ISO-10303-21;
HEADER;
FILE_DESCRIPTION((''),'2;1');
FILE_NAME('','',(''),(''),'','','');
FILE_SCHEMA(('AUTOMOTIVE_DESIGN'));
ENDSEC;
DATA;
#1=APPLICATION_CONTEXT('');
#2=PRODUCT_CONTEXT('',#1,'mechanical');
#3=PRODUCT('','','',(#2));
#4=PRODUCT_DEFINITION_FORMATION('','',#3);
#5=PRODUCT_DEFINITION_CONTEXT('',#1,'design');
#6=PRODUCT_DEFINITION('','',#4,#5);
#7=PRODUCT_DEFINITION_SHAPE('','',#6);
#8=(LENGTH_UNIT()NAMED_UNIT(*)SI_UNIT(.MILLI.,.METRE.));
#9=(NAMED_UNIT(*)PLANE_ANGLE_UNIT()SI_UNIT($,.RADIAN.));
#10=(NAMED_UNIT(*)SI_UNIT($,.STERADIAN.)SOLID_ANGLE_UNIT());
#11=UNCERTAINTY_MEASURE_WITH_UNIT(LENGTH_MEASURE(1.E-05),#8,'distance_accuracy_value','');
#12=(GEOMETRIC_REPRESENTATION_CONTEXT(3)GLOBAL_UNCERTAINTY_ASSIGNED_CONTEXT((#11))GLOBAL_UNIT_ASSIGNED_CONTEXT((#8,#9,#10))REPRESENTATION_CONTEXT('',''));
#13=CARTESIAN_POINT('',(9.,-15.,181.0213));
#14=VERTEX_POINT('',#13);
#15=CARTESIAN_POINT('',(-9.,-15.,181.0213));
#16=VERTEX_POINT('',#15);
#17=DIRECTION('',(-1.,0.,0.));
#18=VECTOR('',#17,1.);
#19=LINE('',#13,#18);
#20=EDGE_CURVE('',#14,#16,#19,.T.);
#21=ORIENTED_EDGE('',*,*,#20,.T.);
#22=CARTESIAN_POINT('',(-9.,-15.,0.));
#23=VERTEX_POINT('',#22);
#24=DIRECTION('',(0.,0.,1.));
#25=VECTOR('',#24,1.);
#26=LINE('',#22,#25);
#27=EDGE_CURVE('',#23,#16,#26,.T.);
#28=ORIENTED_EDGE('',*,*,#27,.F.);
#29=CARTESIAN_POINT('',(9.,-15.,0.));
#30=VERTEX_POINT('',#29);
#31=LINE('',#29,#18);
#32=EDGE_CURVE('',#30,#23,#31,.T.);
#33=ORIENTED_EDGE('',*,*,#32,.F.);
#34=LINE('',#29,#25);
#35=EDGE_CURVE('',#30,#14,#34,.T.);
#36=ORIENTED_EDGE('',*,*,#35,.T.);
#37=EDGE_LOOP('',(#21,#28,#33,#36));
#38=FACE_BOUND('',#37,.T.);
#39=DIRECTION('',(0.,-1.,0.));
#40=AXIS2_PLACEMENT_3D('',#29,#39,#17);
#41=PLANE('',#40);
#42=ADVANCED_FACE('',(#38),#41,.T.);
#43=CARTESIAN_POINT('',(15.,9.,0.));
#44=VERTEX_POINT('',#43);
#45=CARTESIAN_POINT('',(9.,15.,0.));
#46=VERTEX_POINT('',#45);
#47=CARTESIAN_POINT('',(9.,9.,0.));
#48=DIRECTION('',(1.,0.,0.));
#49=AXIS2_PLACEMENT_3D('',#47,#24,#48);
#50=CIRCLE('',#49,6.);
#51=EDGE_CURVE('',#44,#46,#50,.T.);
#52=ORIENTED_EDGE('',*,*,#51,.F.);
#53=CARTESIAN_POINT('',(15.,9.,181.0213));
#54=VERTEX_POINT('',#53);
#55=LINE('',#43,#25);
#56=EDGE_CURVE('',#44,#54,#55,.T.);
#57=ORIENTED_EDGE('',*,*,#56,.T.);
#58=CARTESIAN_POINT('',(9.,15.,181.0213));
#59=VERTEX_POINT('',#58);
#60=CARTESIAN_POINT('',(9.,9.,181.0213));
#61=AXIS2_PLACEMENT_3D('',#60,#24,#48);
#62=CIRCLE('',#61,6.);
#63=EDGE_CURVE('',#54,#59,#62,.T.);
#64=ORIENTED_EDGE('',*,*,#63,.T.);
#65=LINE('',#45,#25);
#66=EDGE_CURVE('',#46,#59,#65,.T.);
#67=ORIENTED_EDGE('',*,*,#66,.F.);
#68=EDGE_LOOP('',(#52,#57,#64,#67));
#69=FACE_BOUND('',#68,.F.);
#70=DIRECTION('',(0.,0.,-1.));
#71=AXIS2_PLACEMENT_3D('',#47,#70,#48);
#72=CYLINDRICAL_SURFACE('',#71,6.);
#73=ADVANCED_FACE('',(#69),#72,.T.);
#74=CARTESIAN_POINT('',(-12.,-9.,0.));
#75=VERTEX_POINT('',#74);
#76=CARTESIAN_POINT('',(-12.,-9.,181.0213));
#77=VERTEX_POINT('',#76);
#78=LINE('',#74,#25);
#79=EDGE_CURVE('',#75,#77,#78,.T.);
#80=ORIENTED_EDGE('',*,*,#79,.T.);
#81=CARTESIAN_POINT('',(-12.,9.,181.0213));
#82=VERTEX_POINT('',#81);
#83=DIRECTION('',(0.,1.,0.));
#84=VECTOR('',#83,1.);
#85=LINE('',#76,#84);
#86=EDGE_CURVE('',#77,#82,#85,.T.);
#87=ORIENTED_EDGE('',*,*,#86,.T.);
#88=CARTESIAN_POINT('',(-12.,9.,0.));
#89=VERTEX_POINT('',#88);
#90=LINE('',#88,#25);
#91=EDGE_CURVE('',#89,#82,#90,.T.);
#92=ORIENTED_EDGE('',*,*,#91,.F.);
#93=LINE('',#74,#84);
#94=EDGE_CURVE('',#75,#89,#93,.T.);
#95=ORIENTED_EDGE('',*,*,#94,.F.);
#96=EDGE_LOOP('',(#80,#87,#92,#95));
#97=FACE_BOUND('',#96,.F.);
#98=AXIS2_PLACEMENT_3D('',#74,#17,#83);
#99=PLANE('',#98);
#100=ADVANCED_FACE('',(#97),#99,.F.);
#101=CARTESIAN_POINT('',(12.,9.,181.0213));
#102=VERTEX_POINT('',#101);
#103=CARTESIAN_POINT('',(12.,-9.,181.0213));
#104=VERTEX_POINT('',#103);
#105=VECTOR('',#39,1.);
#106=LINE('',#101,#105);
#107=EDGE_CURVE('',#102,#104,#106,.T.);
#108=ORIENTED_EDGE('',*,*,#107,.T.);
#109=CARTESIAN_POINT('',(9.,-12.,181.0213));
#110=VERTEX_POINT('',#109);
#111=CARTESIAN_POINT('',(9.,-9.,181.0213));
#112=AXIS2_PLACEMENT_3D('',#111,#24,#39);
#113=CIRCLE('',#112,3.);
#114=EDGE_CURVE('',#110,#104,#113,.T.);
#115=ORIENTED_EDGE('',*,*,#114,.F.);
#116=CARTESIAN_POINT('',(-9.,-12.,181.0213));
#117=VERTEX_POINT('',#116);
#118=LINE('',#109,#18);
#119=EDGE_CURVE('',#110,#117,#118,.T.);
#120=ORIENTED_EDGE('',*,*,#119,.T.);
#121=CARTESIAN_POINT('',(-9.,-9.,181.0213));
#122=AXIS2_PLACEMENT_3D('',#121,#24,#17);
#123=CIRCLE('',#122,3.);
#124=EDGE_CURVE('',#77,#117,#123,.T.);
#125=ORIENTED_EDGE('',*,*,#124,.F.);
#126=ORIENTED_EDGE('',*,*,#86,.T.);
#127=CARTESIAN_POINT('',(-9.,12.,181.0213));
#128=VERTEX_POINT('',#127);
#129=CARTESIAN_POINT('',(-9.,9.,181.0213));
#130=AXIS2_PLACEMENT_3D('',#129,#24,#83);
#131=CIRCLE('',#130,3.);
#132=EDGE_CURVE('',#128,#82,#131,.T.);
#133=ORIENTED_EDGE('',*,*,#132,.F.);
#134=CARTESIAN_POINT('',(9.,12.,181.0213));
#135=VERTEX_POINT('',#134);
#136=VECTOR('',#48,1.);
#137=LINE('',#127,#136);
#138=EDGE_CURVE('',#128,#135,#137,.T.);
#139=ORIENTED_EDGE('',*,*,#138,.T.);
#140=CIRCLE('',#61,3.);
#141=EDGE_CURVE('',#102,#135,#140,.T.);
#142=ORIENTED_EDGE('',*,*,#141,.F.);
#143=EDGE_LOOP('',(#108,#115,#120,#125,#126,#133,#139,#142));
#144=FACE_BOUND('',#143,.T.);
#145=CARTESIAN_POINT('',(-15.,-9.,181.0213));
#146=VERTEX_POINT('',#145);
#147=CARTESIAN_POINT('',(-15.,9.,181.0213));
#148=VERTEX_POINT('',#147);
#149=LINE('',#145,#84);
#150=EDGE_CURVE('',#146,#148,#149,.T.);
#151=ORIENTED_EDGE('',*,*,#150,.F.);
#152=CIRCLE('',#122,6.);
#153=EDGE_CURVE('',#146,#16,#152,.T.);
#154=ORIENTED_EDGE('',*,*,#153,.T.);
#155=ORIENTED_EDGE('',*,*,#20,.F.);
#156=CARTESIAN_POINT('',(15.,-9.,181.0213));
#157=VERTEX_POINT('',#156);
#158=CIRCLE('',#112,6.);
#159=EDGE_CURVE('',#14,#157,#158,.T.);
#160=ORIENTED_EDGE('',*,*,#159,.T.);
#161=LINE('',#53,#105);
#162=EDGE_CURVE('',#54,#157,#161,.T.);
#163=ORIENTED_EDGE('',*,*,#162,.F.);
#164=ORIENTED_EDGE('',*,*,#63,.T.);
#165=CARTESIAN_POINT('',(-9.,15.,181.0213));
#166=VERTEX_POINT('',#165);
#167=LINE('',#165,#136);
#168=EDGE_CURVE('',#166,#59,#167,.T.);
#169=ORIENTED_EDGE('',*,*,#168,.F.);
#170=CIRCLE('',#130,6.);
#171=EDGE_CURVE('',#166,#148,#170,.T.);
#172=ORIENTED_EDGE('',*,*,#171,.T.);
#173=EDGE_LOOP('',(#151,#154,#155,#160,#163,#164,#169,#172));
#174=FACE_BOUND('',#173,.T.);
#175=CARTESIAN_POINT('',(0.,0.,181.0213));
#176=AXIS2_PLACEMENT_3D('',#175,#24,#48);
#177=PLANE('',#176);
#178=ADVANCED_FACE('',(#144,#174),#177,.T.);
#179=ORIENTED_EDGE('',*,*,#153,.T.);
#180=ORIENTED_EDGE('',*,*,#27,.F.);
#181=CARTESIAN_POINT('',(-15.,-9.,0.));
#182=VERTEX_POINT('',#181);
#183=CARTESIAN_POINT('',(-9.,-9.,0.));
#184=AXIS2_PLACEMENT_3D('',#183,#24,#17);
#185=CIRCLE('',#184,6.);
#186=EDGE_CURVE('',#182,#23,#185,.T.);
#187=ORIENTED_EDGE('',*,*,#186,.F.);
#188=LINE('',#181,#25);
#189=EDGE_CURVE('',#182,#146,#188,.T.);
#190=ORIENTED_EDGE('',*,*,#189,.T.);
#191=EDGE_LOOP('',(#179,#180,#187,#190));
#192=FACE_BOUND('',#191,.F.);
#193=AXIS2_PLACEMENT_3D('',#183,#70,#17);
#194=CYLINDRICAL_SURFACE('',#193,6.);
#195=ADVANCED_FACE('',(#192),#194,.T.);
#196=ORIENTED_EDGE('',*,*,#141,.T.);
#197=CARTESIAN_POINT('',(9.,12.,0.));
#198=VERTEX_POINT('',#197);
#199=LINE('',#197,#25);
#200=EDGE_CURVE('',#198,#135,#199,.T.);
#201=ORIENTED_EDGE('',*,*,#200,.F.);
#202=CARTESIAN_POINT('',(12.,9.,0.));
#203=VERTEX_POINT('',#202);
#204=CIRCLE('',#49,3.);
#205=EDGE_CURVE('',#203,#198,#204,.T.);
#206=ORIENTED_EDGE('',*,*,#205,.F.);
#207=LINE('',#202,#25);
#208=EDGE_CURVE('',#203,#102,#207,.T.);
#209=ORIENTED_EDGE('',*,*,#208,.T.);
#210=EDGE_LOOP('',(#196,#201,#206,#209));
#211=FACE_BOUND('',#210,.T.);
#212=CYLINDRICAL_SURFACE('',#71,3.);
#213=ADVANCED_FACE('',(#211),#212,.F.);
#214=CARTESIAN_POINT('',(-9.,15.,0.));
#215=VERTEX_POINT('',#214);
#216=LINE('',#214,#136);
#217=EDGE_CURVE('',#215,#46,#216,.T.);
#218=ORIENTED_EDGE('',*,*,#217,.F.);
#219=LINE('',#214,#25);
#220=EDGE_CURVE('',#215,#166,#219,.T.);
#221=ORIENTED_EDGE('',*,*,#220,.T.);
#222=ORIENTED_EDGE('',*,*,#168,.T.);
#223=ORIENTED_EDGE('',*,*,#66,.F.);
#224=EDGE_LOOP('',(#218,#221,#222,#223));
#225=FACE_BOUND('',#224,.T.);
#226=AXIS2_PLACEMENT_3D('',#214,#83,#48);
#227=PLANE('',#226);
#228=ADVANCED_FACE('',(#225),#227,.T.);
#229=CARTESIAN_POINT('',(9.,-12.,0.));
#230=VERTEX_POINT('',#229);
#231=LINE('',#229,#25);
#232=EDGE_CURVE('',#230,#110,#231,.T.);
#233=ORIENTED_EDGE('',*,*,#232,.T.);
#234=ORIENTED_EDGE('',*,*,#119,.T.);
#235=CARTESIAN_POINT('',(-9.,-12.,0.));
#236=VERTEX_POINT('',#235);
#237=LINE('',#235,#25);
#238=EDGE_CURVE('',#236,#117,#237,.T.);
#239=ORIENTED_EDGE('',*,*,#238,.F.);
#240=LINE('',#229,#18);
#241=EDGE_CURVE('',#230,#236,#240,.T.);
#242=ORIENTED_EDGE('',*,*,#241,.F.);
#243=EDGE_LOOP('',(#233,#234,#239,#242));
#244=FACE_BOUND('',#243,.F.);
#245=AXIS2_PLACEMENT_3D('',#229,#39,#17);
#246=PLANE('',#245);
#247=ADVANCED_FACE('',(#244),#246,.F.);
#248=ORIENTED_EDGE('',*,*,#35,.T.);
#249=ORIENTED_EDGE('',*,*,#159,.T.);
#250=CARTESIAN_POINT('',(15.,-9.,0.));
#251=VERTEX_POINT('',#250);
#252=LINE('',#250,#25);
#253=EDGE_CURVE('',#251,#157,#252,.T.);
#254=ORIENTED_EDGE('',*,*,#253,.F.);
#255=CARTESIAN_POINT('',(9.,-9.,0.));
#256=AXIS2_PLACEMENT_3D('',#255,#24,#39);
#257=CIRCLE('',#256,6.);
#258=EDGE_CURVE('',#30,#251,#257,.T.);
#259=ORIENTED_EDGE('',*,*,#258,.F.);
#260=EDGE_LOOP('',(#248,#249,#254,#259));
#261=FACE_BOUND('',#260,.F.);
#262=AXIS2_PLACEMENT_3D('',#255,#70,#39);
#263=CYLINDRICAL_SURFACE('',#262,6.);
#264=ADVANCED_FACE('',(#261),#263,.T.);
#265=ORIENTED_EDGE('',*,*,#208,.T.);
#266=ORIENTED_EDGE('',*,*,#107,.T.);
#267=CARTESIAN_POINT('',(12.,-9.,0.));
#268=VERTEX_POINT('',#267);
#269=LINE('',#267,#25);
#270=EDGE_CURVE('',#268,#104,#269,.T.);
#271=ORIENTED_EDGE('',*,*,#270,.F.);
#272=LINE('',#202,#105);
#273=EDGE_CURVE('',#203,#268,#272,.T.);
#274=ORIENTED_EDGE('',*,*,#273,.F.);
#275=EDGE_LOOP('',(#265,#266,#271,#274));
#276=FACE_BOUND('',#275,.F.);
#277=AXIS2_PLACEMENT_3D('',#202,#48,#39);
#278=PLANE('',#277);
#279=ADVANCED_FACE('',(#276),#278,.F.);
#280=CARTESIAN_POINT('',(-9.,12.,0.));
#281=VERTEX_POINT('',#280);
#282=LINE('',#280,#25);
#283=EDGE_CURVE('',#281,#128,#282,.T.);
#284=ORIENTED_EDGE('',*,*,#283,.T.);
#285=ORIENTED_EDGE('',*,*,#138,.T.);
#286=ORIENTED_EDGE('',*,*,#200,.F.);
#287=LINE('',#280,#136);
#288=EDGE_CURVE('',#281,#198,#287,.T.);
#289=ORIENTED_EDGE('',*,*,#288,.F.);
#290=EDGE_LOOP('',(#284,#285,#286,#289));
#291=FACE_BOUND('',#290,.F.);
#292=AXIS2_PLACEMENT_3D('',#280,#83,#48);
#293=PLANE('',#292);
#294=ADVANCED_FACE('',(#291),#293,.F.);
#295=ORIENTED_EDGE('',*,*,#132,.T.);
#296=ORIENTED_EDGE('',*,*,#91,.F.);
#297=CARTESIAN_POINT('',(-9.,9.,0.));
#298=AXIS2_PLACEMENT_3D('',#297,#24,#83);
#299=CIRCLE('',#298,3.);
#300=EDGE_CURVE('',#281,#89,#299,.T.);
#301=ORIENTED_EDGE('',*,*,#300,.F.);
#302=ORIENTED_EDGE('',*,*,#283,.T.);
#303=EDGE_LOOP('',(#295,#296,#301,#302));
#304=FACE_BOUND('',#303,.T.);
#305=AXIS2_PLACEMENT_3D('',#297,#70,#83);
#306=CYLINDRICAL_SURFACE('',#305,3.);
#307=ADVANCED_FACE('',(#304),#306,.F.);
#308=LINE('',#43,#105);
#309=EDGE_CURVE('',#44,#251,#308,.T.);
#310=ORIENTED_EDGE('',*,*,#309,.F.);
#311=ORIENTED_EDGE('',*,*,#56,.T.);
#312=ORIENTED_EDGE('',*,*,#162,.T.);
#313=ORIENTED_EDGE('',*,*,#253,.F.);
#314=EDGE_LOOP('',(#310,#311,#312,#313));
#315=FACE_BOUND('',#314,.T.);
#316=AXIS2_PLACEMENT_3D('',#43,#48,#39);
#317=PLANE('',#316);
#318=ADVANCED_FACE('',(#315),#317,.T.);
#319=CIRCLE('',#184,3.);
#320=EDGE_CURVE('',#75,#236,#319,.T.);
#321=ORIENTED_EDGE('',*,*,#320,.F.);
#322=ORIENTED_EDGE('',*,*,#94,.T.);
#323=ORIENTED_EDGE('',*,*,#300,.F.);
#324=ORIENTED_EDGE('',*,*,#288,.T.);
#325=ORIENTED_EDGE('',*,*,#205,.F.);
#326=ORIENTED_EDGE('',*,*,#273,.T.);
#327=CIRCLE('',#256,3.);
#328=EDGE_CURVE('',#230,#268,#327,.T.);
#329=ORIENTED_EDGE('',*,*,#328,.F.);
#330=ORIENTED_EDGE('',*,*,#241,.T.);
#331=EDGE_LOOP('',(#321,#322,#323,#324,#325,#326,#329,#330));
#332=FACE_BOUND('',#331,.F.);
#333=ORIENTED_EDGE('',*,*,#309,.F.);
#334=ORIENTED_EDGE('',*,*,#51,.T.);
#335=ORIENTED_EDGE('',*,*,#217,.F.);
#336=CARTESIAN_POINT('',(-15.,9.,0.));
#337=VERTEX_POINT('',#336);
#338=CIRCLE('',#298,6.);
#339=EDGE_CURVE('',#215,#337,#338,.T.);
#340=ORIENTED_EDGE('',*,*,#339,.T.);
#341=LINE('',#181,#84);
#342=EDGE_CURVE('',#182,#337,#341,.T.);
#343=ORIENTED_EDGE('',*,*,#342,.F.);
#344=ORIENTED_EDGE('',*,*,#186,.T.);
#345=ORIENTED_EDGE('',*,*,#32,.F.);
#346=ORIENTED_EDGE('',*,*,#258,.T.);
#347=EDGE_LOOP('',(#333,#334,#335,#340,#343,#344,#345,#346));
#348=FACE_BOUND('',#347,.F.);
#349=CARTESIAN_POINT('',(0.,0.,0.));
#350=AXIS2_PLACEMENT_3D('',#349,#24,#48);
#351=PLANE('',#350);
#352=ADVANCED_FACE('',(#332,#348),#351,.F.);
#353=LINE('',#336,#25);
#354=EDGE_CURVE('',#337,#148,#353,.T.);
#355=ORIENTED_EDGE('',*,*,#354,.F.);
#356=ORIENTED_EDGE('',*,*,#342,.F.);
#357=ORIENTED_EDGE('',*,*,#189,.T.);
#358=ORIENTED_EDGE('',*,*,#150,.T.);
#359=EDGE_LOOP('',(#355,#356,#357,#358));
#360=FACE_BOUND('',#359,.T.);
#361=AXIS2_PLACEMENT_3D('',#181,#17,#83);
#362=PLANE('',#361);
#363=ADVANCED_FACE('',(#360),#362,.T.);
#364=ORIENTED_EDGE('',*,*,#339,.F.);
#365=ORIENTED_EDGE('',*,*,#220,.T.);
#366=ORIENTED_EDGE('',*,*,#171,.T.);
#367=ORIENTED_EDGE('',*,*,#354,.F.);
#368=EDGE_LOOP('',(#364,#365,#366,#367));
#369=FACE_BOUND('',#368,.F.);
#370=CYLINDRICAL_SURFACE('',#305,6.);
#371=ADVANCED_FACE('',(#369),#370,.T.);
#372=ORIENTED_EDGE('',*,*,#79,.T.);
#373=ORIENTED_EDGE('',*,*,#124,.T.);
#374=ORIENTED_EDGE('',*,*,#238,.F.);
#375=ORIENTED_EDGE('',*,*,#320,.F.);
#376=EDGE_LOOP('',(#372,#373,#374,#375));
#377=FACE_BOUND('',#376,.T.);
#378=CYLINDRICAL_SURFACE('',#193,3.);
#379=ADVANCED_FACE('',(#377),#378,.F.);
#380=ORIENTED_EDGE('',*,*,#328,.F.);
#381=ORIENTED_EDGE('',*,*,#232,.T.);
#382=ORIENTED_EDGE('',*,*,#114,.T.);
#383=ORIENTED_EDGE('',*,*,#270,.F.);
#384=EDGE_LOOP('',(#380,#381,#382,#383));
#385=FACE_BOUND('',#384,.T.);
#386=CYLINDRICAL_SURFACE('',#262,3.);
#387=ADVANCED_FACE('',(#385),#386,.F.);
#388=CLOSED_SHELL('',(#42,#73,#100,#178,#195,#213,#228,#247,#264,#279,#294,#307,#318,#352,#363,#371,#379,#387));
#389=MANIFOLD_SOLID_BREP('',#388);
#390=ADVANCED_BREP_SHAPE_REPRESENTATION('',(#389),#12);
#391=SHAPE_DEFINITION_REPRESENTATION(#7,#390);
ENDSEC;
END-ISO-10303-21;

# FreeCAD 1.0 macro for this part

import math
import FreeCAD as App
import Part
import Sketcher
from FreeCAD import Vector

doc = App.newDocument("Part")
params = doc.addObject("Spreadsheet::Sheet", "Params")
for row, (alias, value) in enumerate([
    ("sketch1_radius", "6 mm"),
    ("sketch1_radius2", "3 mm"),
    ("pad1_length", "181.0213 mm"),
], start=1):
    params.set(f"A{row}", alias)
    params.set(f"B{row}", "=" + value)
    params.setAlias(f"B{row}", alias)

body = doc.addObject("PartDesign::Body", "Body")

# Sketch on XY plane
sketch1 = body.newObject("Sketcher::SketchObject", "Sketch")
sketch1.AttachmentSupport = (doc.getObject("XY_Plane"), [""])
sketch1.MapMode = "FlatFace"
sketch1.addGeometry([
    Part.LineSegment(Vector(-15, 9, 0), Vector(-15, -9, 0)),  # 0
    Part.ArcOfCircle(Part.Circle(Vector(-9, -9, 0), Vector(0, 0, 1), 6), math.radians(180), math.radians(270)),  # 1
    Part.LineSegment(Vector(-9, -15, 0), Vector(9, -15, 0)),  # 2
    Part.ArcOfCircle(Part.Circle(Vector(9, -9, 0), Vector(0, 0, 1), 6), math.radians(-90), math.radians(0)),  # 3
    Part.LineSegment(Vector(15, -9, 0), Vector(15, 9, 0)),  # 4
    Part.ArcOfCircle(Part.Circle(Vector(9, 9, 0), Vector(0, 0, 1), 6), math.radians(0), math.radians(90)),  # 5
    Part.LineSegment(Vector(9, 15, 0), Vector(-9, 15, 0)),  # 6
    Part.ArcOfCircle(Part.Circle(Vector(-9, 9, 0), Vector(0, 0, 1), 6), math.radians(90), math.radians(180)),  # 7
    Part.ArcOfCircle(Part.Circle(Vector(-9, 9, 0), Vector(0, 0, 1), 3), math.radians(90), math.radians(180)),  # 8
    Part.LineSegment(Vector(-9, 12, 0), Vector(9, 12, 0)),  # 9
    Part.ArcOfCircle(Part.Circle(Vector(9, 9, 0), Vector(0, 0, 1), 3), math.radians(0), math.radians(90)),  # 10
    Part.LineSegment(Vector(12, 9, 0), Vector(12, -9, 0)),  # 11
    Part.ArcOfCircle(Part.Circle(Vector(9, -9, 0), Vector(0, 0, 1), 3), math.radians(-90), math.radians(0)),  # 12
    Part.LineSegment(Vector(9, -12, 0), Vector(-9, -12, 0)),  # 13
    Part.ArcOfCircle(Part.Circle(Vector(-9, -9, 0), Vector(0, 0, 1), 3), math.radians(180), math.radians(270)),  # 14
    Part.LineSegment(Vector(-12, -9, 0), Vector(-12, 9, 0)),  # 15
], False)
sketch1.addConstraint([
    Sketcher.Constraint("Tangent", 0, 2, 1, 1),
    Sketcher.Constraint("Tangent", 1, 2, 2, 1),
    Sketcher.Constraint("Tangent", 2, 2, 3, 1),
    Sketcher.Constraint("Tangent", 3, 2, 4, 1),
    Sketcher.Constraint("Tangent", 4, 2, 5, 1),
    Sketcher.Constraint("Tangent", 5, 2, 6, 1),
    Sketcher.Constraint("Tangent", 6, 2, 7, 1),
    Sketcher.Constraint("Tangent", 7, 2, 0, 1),
    Sketcher.Constraint("Tangent", 8, 1, 9, 1),
    Sketcher.Constraint("Tangent", 9, 2, 10, 2),
    Sketcher.Constraint("Tangent", 10, 1, 11, 1),
    Sketcher.Constraint("Tangent", 11, 2, 12, 2),
    Sketcher.Constraint("Tangent", 12, 1, 13, 1),
    Sketcher.Constraint("Tangent", 13, 2, 14, 2),
    Sketcher.Constraint("Tangent", 14, 1, 15, 1),
    Sketcher.Constraint("Tangent", 15, 2, 8, 2),
    Sketcher.Constraint("Vertical", 0),
    Sketcher.Constraint("Horizontal", 2),
    Sketcher.Constraint("Vertical", 4),
    Sketcher.Constraint("Horizontal", 6),
    Sketcher.Constraint("Horizontal", 9),
    Sketcher.Constraint("Vertical", 11),
    Sketcher.Constraint("Horizontal", 13),
    Sketcher.Constraint("Vertical", 15),
    Sketcher.Constraint("Coincident", 8, 3, 7, 3),
    Sketcher.Constraint("Coincident", 10, 3, 5, 3),
    Sketcher.Constraint("Coincident", 12, 3, 3, 3),
    Sketcher.Constraint("Equal", 1, 3),
    Sketcher.Constraint("Equal", 3, 5),
    Sketcher.Constraint("Equal", 5, 7),
    Sketcher.Constraint("Equal", 12, 14),
    Sketcher.Constraint("Symmetric", 1, 3, 5, 3, -1, 1),
    Sketcher.Constraint("Equal", 13, 0),
    Sketcher.Constraint("Radius", 1, 6.0),
    Sketcher.Constraint("Radius", 8, 3.0),
    Sketcher.Constraint("DistanceX", 0, 2, -1, 1, 15.0),
])
sketch1.setExpression("Constraints[33]", "Params.sketch1_radius")
sketch1.setExpression("Constraints[34]", "Params.sketch1_radius2")
pad1 = body.newObject("PartDesign::Pad", "Pad")
pad1.Profile = sketch1
pad1.setExpression("Length", "Params.pad1_length")

doc.recompute()
